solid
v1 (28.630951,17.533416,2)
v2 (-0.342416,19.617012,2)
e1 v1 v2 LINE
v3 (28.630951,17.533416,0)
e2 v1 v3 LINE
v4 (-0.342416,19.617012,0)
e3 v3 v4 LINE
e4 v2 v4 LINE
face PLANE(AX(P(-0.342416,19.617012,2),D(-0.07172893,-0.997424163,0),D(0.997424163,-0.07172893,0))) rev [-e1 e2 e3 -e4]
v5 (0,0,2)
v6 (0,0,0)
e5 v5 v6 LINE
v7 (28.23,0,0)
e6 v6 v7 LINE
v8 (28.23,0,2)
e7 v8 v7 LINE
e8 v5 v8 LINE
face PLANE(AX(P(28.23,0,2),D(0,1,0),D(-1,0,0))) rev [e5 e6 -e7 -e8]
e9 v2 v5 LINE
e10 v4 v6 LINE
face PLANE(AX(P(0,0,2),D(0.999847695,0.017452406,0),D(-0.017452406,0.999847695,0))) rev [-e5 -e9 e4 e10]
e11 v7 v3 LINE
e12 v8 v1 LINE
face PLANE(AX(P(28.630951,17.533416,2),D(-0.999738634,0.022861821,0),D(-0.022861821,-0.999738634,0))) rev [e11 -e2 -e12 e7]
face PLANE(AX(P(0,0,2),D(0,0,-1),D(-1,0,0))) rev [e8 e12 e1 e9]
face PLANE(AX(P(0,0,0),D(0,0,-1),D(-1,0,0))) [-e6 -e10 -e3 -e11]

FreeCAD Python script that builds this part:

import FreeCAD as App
import Part
import Sketcher
from FreeCAD import Vector
Q = App.Units.Quantity

doc = App.newDocument("Part")
params = doc.addObject("Spreadsheet::Sheet", "Params")
for row, (alias, value) in enumerate([
    ("sketch1_width", "28.23 mm"),
    ("sketch1_length", "19.62 mm"),
    ("pad1_length", "2 mm"),
], start=1):
    params.set(f"A{row}", alias)
    params.set(f"B{row}", "=" + value)
    params.setAlias(f"B{row}", alias)

body = doc.addObject("PartDesign::Body", "Body")

sketch1 = body.newObject("Sketcher::SketchObject", "Sketch")
sketch1.AttachmentSupport = (doc.getObject("XY_Plane"), [""])
sketch1.MapMode = "FlatFace"
sketch1.addGeometry([
    Part.LineSegment(Vector(0, 20, 0), Vector(0, 0, 0)),
    Part.LineSegment(Vector(0, 0, 0), Vector(28, 0, 0)),
    Part.LineSegment(Vector(28, 0, 0), Vector(29, 18, 0)),
    Part.LineSegment(Vector(29, 18, 0), Vector(0, 20, 0)),
], False)
sketch1.addConstraint([
    Sketcher.Constraint("Coincident", 0, 2, 1, 1),
    Sketcher.Constraint("Coincident", 1, 2, 2, 1),
    Sketcher.Constraint("Coincident", 2, 2, 3, 1),
    Sketcher.Constraint("Coincident", 3, 2, 0, 1),
    Sketcher.Constraint("Horizontal", 1),
    Sketcher.Constraint("Coincident", 0, 2, -1, 1),
    Sketcher.Constraint("Angle", 0, Q("-89 deg")),
    Sketcher.Constraint("DistanceX", 1, 1, 1, 2, 28.23),
    Sketcher.Constraint("Angle", 2, Q("88.69 deg")),
    Sketcher.Constraint("Distance", 0, 19.62),
    Sketcher.Constraint("Distance", 2, 17.538),
])
sketch1.setExpression("Constraints[7]", "Params.sketch1_width")
sketch1.setExpression("Constraints[9]", "Params.sketch1_length")
pad1 = body.newObject("PartDesign::Pad", "Pad")
pad1.Profile = sketch1
pad1.setExpression("Length", "Params.pad1_length")

doc.recompute()
